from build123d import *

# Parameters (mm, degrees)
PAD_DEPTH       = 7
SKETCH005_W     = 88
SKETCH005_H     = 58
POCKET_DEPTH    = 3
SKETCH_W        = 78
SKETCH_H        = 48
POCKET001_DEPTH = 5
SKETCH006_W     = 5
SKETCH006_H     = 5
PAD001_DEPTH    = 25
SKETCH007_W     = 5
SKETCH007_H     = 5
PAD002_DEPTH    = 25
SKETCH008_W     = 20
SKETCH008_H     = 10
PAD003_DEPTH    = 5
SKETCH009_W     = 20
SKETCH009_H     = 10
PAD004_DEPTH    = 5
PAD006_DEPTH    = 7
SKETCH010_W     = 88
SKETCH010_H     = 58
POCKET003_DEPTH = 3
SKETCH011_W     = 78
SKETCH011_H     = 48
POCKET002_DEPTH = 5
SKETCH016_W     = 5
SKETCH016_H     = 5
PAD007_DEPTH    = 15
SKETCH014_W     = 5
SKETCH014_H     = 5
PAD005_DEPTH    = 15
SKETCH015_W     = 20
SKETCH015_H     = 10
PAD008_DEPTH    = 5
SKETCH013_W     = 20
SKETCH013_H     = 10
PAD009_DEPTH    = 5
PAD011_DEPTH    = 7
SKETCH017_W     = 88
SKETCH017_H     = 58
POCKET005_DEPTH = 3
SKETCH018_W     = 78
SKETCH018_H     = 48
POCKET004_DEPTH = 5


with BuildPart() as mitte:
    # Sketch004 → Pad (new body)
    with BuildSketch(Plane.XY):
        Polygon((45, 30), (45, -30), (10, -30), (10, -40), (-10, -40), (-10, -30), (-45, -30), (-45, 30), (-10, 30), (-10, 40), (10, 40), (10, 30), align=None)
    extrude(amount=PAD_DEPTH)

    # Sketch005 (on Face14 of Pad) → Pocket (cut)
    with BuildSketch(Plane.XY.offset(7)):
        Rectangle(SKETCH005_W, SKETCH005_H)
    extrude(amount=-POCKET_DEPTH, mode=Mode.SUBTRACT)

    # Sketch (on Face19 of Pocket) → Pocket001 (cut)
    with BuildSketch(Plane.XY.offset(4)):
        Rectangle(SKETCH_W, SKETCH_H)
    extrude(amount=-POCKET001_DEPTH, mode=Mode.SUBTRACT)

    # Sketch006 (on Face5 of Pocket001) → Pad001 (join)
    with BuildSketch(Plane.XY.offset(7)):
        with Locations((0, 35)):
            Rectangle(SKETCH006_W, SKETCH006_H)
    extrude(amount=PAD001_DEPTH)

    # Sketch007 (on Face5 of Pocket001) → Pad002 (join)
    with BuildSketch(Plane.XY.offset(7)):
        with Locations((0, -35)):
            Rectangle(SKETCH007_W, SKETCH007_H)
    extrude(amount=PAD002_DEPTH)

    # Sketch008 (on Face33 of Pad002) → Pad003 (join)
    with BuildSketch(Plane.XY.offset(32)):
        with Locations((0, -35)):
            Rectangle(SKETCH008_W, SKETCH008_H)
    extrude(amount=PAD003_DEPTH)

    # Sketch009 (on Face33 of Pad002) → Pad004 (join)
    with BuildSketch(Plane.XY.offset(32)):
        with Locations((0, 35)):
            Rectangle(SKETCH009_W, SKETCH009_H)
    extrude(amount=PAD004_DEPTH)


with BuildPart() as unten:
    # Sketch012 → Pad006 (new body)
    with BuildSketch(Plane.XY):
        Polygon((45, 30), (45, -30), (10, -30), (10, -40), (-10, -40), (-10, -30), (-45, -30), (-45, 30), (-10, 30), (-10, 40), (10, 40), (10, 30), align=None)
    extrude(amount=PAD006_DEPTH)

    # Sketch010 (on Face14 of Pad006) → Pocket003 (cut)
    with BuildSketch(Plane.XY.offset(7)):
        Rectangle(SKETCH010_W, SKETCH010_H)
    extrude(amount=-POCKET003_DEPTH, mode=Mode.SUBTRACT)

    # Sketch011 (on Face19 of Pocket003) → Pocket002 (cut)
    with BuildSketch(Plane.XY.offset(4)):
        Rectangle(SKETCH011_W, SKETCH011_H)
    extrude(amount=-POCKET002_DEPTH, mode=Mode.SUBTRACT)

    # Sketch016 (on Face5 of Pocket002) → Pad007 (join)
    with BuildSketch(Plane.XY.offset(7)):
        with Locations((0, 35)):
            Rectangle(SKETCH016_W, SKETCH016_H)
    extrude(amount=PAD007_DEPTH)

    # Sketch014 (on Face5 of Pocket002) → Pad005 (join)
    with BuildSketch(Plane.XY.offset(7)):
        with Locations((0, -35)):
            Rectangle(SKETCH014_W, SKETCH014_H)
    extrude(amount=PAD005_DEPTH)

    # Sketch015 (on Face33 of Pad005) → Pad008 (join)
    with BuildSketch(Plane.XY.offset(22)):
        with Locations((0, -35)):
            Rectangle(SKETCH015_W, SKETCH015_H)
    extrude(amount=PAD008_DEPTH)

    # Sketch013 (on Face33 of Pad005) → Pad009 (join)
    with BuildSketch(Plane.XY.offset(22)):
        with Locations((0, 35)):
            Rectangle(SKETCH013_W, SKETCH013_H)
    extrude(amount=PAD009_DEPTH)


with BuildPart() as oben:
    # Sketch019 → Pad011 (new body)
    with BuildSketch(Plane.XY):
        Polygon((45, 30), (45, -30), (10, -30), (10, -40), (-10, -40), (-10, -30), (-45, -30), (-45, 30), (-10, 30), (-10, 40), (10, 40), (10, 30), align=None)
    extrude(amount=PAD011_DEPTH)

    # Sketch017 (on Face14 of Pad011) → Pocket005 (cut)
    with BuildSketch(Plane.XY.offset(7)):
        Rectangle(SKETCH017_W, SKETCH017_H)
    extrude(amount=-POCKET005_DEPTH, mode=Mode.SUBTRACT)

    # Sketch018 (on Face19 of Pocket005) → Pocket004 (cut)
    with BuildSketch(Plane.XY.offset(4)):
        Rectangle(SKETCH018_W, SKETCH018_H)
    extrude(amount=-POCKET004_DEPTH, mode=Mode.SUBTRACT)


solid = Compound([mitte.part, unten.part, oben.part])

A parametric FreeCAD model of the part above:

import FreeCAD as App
import Part
import Sketcher
from FreeCAD import Vector

doc = App.newDocument("Part")
body = doc.addObject("PartDesign::Body", "Body")

# Sketch on XY plane
sketch1 = doc.addObject("Sketcher::SketchObject", "Sketch")
body.addObject(sketch1)
sketch1.AttachmentSupport = (doc.XY_Plane, [""])
sketch1.MapMode = "FlatFace"
sketch1.addGeometry([
    Part.LineSegment(Vector(45, -30, 0), Vector(45, 30, 0)),  # 0
    Part.LineSegment(Vector(45, 30, 0), Vector(10, 30, 0)),  # 1
    Part.LineSegment(Vector(10, 30, 0), Vector(10, 40, 0)),  # 2
    Part.LineSegment(Vector(10, 40, 0), Vector(-10, 40, 0)),  # 3
    Part.LineSegment(Vector(-10, 40, 0), Vector(-10, 30, 0)),  # 4
    Part.LineSegment(Vector(-10, 30, 0), Vector(-45, 30, 0)),  # 5
    Part.LineSegment(Vector(-45, 30, 0), Vector(-45, -30, 0)),  # 6
    Part.LineSegment(Vector(-45, -30, 0), Vector(-10, -30, 0)),  # 7
    Part.LineSegment(Vector(-10, -30, 0), Vector(-10, -40, 0)),  # 8
    Part.LineSegment(Vector(-10, -40, 0), Vector(10, -40, 0)),  # 9
    Part.LineSegment(Vector(10, -40, 0), Vector(10, -30, 0)),  # 10
    Part.LineSegment(Vector(10, -30, 0), Vector(45, -30, 0)),  # 11
], False)
sketch1.addConstraint([
    Sketcher.Constraint("Coincident", 0, 2, 1, 1),
    Sketcher.Constraint("Coincident", 1, 2, 2, 1),
    Sketcher.Constraint("Coincident", 2, 2, 3, 1),
    Sketcher.Constraint("Coincident", 3, 2, 4, 1),
    Sketcher.Constraint("Coincident", 4, 2, 5, 1),
    Sketcher.Constraint("Coincident", 5, 2, 6, 1),
    Sketcher.Constraint("Coincident", 6, 2, 7, 1),
    Sketcher.Constraint("Coincident", 7, 2, 8, 1),
    Sketcher.Constraint("Coincident", 8, 2, 9, 1),
    Sketcher.Constraint("Coincident", 9, 2, 10, 1),
    Sketcher.Constraint("Coincident", 10, 2, 11, 1),
    Sketcher.Constraint("Coincident", 11, 2, 0, 1),
    Sketcher.Constraint("Vertical", 0),
    Sketcher.Constraint("Horizontal", 1),
    Sketcher.Constraint("Vertical", 2),
    Sketcher.Constraint("Horizontal", 3),
    Sketcher.Constraint("Vertical", 4),
    Sketcher.Constraint("Horizontal", 5),
    Sketcher.Constraint("Vertical", 6),
    Sketcher.Constraint("Horizontal", 7),
    Sketcher.Constraint("Vertical", 8),
    Sketcher.Constraint("Horizontal", 9),
    Sketcher.Constraint("Vertical", 10),
    Sketcher.Constraint("Horizontal", 11),
    Sketcher.Constraint("Symmetric", 0, 2, 6, 2, -1, 1),
    Sketcher.Constraint("Symmetric", 2, 2, 8, 2, -1, 1),
    Sketcher.Constraint("Symmetric", 4, 2, 10, 2, -1, 1),
    Sketcher.Constraint("Symmetric", 1, 2, 4, 2, -2),
    Sketcher.Constraint("DistanceX", 1, 2, 1, 1, 35.0),
    Sketcher.Constraint("DistanceX", 3, 2, 3, 1, 20.0),
    Sketcher.Constraint("DistanceY", 0, 1, 0, 2, 60.0),
    Sketcher.Constraint("DistanceY", 2, 1, 2, 2, 10.0),
])
pad1 = doc.addObject("PartDesign::Pad", "Pad")
body.addObject(pad1)
pad1.Profile = sketch1
pad1.Length = 7

# Sketch on XY plane
sketch2 = doc.addObject("Sketcher::SketchObject", "Sketch001")
body.addObject(sketch2)
sketch2.AttachmentSupport = (doc.XY_Plane, [""])
sketch2.MapMode = "FlatFace"
sketch2.AttachmentOffset = App.Placement(Vector(0, 0, 7), App.Rotation())
sketch2.addGeometry([
    Part.LineSegment(Vector(-44, 29, 0), Vector(-44, -29, 0)),
    Part.LineSegment(Vector(-44, -29, 0), Vector(44, -29, 0)),
    Part.LineSegment(Vector(44, -29, 0), Vector(44, 29, 0)),
    Part.LineSegment(Vector(44, 29, 0), Vector(-44, 29, 0)),
], False)
sketch2.addConstraint([
    Sketcher.Constraint("Coincident", 0, 2, 1, 1),
    Sketcher.Constraint("Coincident", 1, 2, 2, 1),
    Sketcher.Constraint("Coincident", 2, 2, 3, 1),
    Sketcher.Constraint("Coincident", 3, 2, 0, 1),
    Sketcher.Constraint("Vertical", 0),
    Sketcher.Constraint("Horizontal", 1),
    Sketcher.Constraint("Vertical", 2),
    Sketcher.Constraint("Horizontal", 3),
    Sketcher.Constraint("Symmetric", 0, 2, 2, 2, -1, 1),
    Sketcher.Constraint("DistanceX", 1, 1, 1, 2, 88.0),
    Sketcher.Constraint("DistanceY", 0, 2, 0, 1, 58.0),
])
pocket1 = doc.addObject("PartDesign::Pocket", "Pocket")
body.addObject(pocket1)
pocket1.Profile = sketch2
pocket1.Length = 3

# Sketch on XY plane
sketch3 = doc.addObject("Sketcher::SketchObject", "Sketch002")
body.addObject(sketch3)
sketch3.AttachmentSupport = (doc.XY_Plane, [""])
sketch3.MapMode = "FlatFace"
sketch3.AttachmentOffset = App.Placement(Vector(0, 0, 4), App.Rotation())
sketch3.addGeometry([
    Part.LineSegment(Vector(-39, 24, 0), Vector(-39, -24, 0)),
    Part.LineSegment(Vector(-39, -24, 0), Vector(39, -24, 0)),
    Part.LineSegment(Vector(39, -24, 0), Vector(39, 24, 0)),
    Part.LineSegment(Vector(39, 24, 0), Vector(-39, 24, 0)),
], False)
sketch3.addConstraint([
    Sketcher.Constraint("Coincident", 0, 2, 1, 1),
    Sketcher.Constraint("Coincident", 1, 2, 2, 1),
    Sketcher.Constraint("Coincident", 2, 2, 3, 1),
    Sketcher.Constraint("Coincident", 3, 2, 0, 1),
    Sketcher.Constraint("Vertical", 0),
    Sketcher.Constraint("Horizontal", 1),
    Sketcher.Constraint("Vertical", 2),
    Sketcher.Constraint("Horizontal", 3),
    Sketcher.Constraint("Symmetric", 0, 2, 2, 2, -1, 1),
    Sketcher.Constraint("DistanceX", 1, 1, 1, 2, 78.0),
    Sketcher.Constraint("DistanceY", 0, 2, 0, 1, 48.0),
])
pocket2 = doc.addObject("PartDesign::Pocket", "Pocket001")
body.addObject(pocket2)
pocket2.Profile = sketch3
pocket2.Length = 5

# Sketch on XY plane
sketch4 = doc.addObject("Sketcher::SketchObject", "Sketch003")
body.addObject(sketch4)
sketch4.AttachmentSupport = (doc.XY_Plane, [""])
sketch4.MapMode = "FlatFace"
sketch4.AttachmentOffset = App.Placement(Vector(0, 0, 7), App.Rotation())
sketch4.addGeometry([
    Part.LineSegment(Vector(-2, 38, 0), Vector(-2, 32, 0)),
    Part.LineSegment(Vector(-2, 32, 0), Vector(2, 32, 0)),
    Part.LineSegment(Vector(2, 32, 0), Vector(2, 38, 0)),
    Part.LineSegment(Vector(2, 38, 0), Vector(-2, 38, 0)),
], False)
sketch4.addConstraint([
    Sketcher.Constraint("Coincident", 0, 2, 1, 1),
    Sketcher.Constraint("Coincident", 1, 2, 2, 1),
    Sketcher.Constraint("Coincident", 2, 2, 3, 1),
    Sketcher.Constraint("Coincident", 3, 2, 0, 1),
    Sketcher.Constraint("Vertical", 0),
    Sketcher.Constraint("Horizontal", 1),
    Sketcher.Constraint("Vertical", 2),
    Sketcher.Constraint("Horizontal", 3),
    Sketcher.Constraint("Equal", 3, 0),
    Sketcher.Constraint("DistanceX", 1, 1, 1, 2, 5.0),
    Sketcher.Constraint("DistanceX", 0, 2, -1, 1, 2.5),
    Sketcher.Constraint("DistanceY", -1, 1, 0, 2, 32.5),
])
pad2 = doc.addObject("PartDesign::Pad", "Pad001")
body.addObject(pad2)
pad2.Profile = sketch4
pad2.Length = 25

# Sketch on XY plane
sketch5 = doc.addObject("Sketcher::SketchObject", "Sketch004")
body.addObject(sketch5)
sketch5.AttachmentSupport = (doc.XY_Plane, [""])
sketch5.MapMode = "FlatFace"
sketch5.AttachmentOffset = App.Placement(Vector(0, 0, 7), App.Rotation())
sketch5.addGeometry([
    Part.LineSegment(Vector(-2, -32, 0), Vector(-2, -38, 0)),
    Part.LineSegment(Vector(-2, -38, 0), Vector(2, -38, 0)),
    Part.LineSegment(Vector(2, -38, 0), Vector(2, -32, 0)),
    Part.LineSegment(Vector(2, -32, 0), Vector(-2, -32, 0)),
], False)
sketch5.addConstraint([
    Sketcher.Constraint("Coincident", 0, 2, 1, 1),
    Sketcher.Constraint("Coincident", 1, 2, 2, 1),
    Sketcher.Constraint("Coincident", 2, 2, 3, 1),
    Sketcher.Constraint("Coincident", 3, 2, 0, 1),
    Sketcher.Constraint("Vertical", 0),
    Sketcher.Constraint("Horizontal", 1),
    Sketcher.Constraint("Vertical", 2),
    Sketcher.Constraint("Horizontal", 3),
    Sketcher.Constraint("Equal", 3, 0),
    Sketcher.Constraint("DistanceX", 1, 1, 1, 2, 5.0),
    Sketcher.Constraint("DistanceX", 0, 2, -1, 1, 2.5),
    Sketcher.Constraint("DistanceY", 0, 2, -1, 1, 37.5),
])
pad3 = doc.addObject("PartDesign::Pad", "Pad002")
body.addObject(pad3)
pad3.Profile = sketch5
pad3.Length = 25

# Sketch on XY plane
sketch6 = doc.addObject("Sketcher::SketchObject", "Sketch005")
body.addObject(sketch6)
sketch6.AttachmentSupport = (doc.XY_Plane, [""])
sketch6.MapMode = "FlatFace"
sketch6.AttachmentOffset = App.Placement(Vector(0, 0, 32), App.Rotation())
sketch6.addGeometry([
    Part.LineSegment(Vector(-10, -30, 0), Vector(-10, -40, 0)),
    Part.LineSegment(Vector(-10, -40, 0), Vector(10, -40, 0)),
    Part.LineSegment(Vector(10, -40, 0), Vector(10, -30, 0)),
    Part.LineSegment(Vector(10, -30, 0), Vector(-10, -30, 0)),
], False)
sketch6.addConstraint([
    Sketcher.Constraint("Coincident", 0, 2, 1, 1),
    Sketcher.Constraint("Coincident", 1, 2, 2, 1),
    Sketcher.Constraint("Coincident", 2, 2, 3, 1),
    Sketcher.Constraint("Coincident", 3, 2, 0, 1),
    Sketcher.Constraint("Vertical", 0),
    Sketcher.Constraint("Horizontal", 1),
    Sketcher.Constraint("Vertical", 2),
    Sketcher.Constraint("Horizontal", 3),
    Sketcher.Constraint("DistanceX", 1, 1, 1, 2, 20.0),
    Sketcher.Constraint("DistanceY", 0, 2, 0, 1, 10.0),
    Sketcher.Constraint("DistanceX", 0, 2, -1, 1, 10.0),
    Sketcher.Constraint("DistanceY", 0, 2, -1, 1, 40.0),
])
pad4 = doc.addObject("PartDesign::Pad", "Pad003")
body.addObject(pad4)
pad4.Profile = sketch6
pad4.Length = 5

# Sketch on XY plane
sketch7 = doc.addObject("Sketcher::SketchObject", "Sketch006")
body.addObject(sketch7)
sketch7.AttachmentSupport = (doc.XY_Plane, [""])
sketch7.MapMode = "FlatFace"
sketch7.AttachmentOffset = App.Placement(Vector(0, 0, 32), App.Rotation())
sketch7.addGeometry([
    Part.LineSegment(Vector(-10, 40, 0), Vector(-10, 30, 0)),
    Part.LineSegment(Vector(-10, 30, 0), Vector(10, 30, 0)),
    Part.LineSegment(Vector(10, 30, 0), Vector(10, 40, 0)),
    Part.LineSegment(Vector(10, 40, 0), Vector(-10, 40, 0)),
], False)
sketch7.addConstraint([
    Sketcher.Constraint("Coincident", 0, 2, 1, 1),
    Sketcher.Constraint("Coincident", 1, 2, 2, 1),
    Sketcher.Constraint("Coincident", 2, 2, 3, 1),
    Sketcher.Constraint("Coincident", 3, 2, 0, 1),
    Sketcher.Constraint("Vertical", 0),
    Sketcher.Constraint("Horizontal", 1),
    Sketcher.Constraint("Vertical", 2),
    Sketcher.Constraint("Horizontal", 3),
    Sketcher.Constraint("DistanceX", 1, 1, 1, 2, 20.0),
    Sketcher.Constraint("DistanceY", 0, 2, 0, 1, 10.0),
    Sketcher.Constraint("DistanceX", 0, 2, -1, 1, 10.0),
    Sketcher.Constraint("DistanceY", -1, 1, 0, 2, 30.0),
])
pad5 = doc.addObject("PartDesign::Pad", "Pad004")
body.addObject(pad5)
pad5.Profile = sketch7
pad5.Length = 5
body2 = doc.addObject("PartDesign::Body", "Body001")

# Sketch on XY plane
sketch8 = doc.addObject("Sketcher::SketchObject", "Sketch007")
body2.addObject(sketch8)
sketch8.AttachmentSupport = (doc.getObject("XY_Plane001"), [""])
sketch8.MapMode = "FlatFace"
sketch8.addGeometry([
    Part.LineSegment(Vector(45, -30, 0), Vector(45, 30, 0)),  # 0
    Part.LineSegment(Vector(45, 30, 0), Vector(10, 30, 0)),  # 1
    Part.LineSegment(Vector(10, 30, 0), Vector(10, 40, 0)),  # 2
    Part.LineSegment(Vector(10, 40, 0), Vector(-10, 40, 0)),  # 3
    Part.LineSegment(Vector(-10, 40, 0), Vector(-10, 30, 0)),  # 4
    Part.LineSegment(Vector(-10, 30, 0), Vector(-45, 30, 0)),  # 5
    Part.LineSegment(Vector(-45, 30, 0), Vector(-45, -30, 0)),  # 6
    Part.LineSegment(Vector(-45, -30, 0), Vector(-10, -30, 0)),  # 7
    Part.LineSegment(Vector(-10, -30, 0), Vector(-10, -40, 0)),  # 8
    Part.LineSegment(Vector(-10, -40, 0), Vector(10, -40, 0)),  # 9
    Part.LineSegment(Vector(10, -40, 0), Vector(10, -30, 0)),  # 10
    Part.LineSegment(Vector(10, -30, 0), Vector(45, -30, 0)),  # 11
], False)
sketch8.addConstraint([
    Sketcher.Constraint("Coincident", 0, 2, 1, 1),
    Sketcher.Constraint("Coincident", 1, 2, 2, 1),
    Sketcher.Constraint("Coincident", 2, 2, 3, 1),
    Sketcher.Constraint("Coincident", 3, 2, 4, 1),
    Sketcher.Constraint("Coincident", 4, 2, 5, 1),
    Sketcher.Constraint("Coincident", 5, 2, 6, 1),
    Sketcher.Constraint("Coincident", 6, 2, 7, 1),
    Sketcher.Constraint("Coincident", 7, 2, 8, 1),
    Sketcher.Constraint("Coincident", 8, 2, 9, 1),
    Sketcher.Constraint("Coincident", 9, 2, 10, 1),
    Sketcher.Constraint("Coincident", 10, 2, 11, 1),
    Sketcher.Constraint("Coincident", 11, 2, 0, 1),
    Sketcher.Constraint("Vertical", 0),
    Sketcher.Constraint("Horizontal", 1),
    Sketcher.Constraint("Vertical", 2),
    Sketcher.Constraint("Horizontal", 3),
    Sketcher.Constraint("Vertical", 4),
    Sketcher.Constraint("Horizontal", 5),
    Sketcher.Constraint("Vertical", 6),
    Sketcher.Constraint("Horizontal", 7),
    Sketcher.Constraint("Vertical", 8),
    Sketcher.Constraint("Horizontal", 9),
    Sketcher.Constraint("Vertical", 10),
    Sketcher.Constraint("Horizontal", 11),
    Sketcher.Constraint("Symmetric", 0, 2, 6, 2, -1, 1),
    Sketcher.Constraint("Symmetric", 2, 2, 8, 2, -1, 1),
    Sketcher.Constraint("Symmetric", 4, 2, 10, 2, -1, 1),
    Sketcher.Constraint("Symmetric", 1, 2, 4, 2, -2),
    Sketcher.Constraint("DistanceX", 1, 2, 1, 1, 35.0),
    Sketcher.Constraint("DistanceX", 3, 2, 3, 1, 20.0),
    Sketcher.Constraint("DistanceY", 0, 1, 0, 2, 60.0),
    Sketcher.Constraint("DistanceY", 2, 1, 2, 2, 10.0),
])
pad6 = doc.addObject("PartDesign::Pad", "Pad005")
body2.addObject(pad6)
pad6.Profile = sketch8
pad6.Length = 7

# Sketch on XY plane
sketch9 = doc.addObject("Sketcher::SketchObject", "Sketch008")
body2.addObject(sketch9)
sketch9.AttachmentSupport = (doc.getObject("XY_Plane001"), [""])
sketch9.MapMode = "FlatFace"
sketch9.AttachmentOffset = App.Placement(Vector(0, 0, 7), App.Rotation())
sketch9.addGeometry([
    Part.LineSegment(Vector(-44, 29, 0), Vector(-44, -29, 0)),
    Part.LineSegment(Vector(-44, -29, 0), Vector(44, -29, 0)),
    Part.LineSegment(Vector(44, -29, 0), Vector(44, 29, 0)),
    Part.LineSegment(Vector(44, 29, 0), Vector(-44, 29, 0)),
], False)
sketch9.addConstraint([
    Sketcher.Constraint("Coincident", 0, 2, 1, 1),
    Sketcher.Constraint("Coincident", 1, 2, 2, 1),
    Sketcher.Constraint("Coincident", 2, 2, 3, 1),
    Sketcher.Constraint("Coincident", 3, 2, 0, 1),
    Sketcher.Constraint("Vertical", 0),
    Sketcher.Constraint("Horizontal", 1),
    Sketcher.Constraint("Vertical", 2),
    Sketcher.Constraint("Horizontal", 3),
    Sketcher.Constraint("Symmetric", 0, 2, 2, 2, -1, 1),
    Sketcher.Constraint("DistanceX", 1, 1, 1, 2, 88.0),
    Sketcher.Constraint("DistanceY", 0, 2, 0, 1, 58.0),
])
pocket3 = doc.addObject("PartDesign::Pocket", "Pocket002")
body2.addObject(pocket3)
pocket3.Profile = sketch9
pocket3.Length = 3

# Sketch on XY plane
sketch10 = doc.addObject("Sketcher::SketchObject", "Sketch009")
body2.addObject(sketch10)
sketch10.AttachmentSupport = (doc.getObject("XY_Plane001"), [""])
sketch10.MapMode = "FlatFace"
sketch10.AttachmentOffset = App.Placement(Vector(0, 0, 4), App.Rotation())
sketch10.addGeometry([
    Part.LineSegment(Vector(-39, 24, 0), Vector(-39, -24, 0)),
    Part.LineSegment(Vector(-39, -24, 0), Vector(39, -24, 0)),
    Part.LineSegment(Vector(39, -24, 0), Vector(39, 24, 0)),
    Part.LineSegment(Vector(39, 24, 0), Vector(-39, 24, 0)),
], False)
sketch10.addConstraint([
    Sketcher.Constraint("Coincident", 0, 2, 1, 1),
    Sketcher.Constraint("Coincident", 1, 2, 2, 1),
    Sketcher.Constraint("Coincident", 2, 2, 3, 1),
    Sketcher.Constraint("Coincident", 3, 2, 0, 1),
    Sketcher.Constraint("Vertical", 0),
    Sketcher.Constraint("Horizontal", 1),
    Sketcher.Constraint("Vertical", 2),
    Sketcher.Constraint("Horizontal", 3),
    Sketcher.Constraint("Symmetric", 0, 2, 2, 2, -1, 1),
    Sketcher.Constraint("DistanceX", 1, 1, 1, 2, 78.0),
    Sketcher.Constraint("DistanceY", 0, 2, 0, 1, 48.0),
])
pocket4 = doc.addObject("PartDesign::Pocket", "Pocket003")
body2.addObject(pocket4)
pocket4.Profile = sketch10
pocket4.Length = 5

# Sketch on XY plane
sketch11 = doc.addObject("Sketcher::SketchObject", "Sketch010")
body2.addObject(sketch11)
sketch11.AttachmentSupport = (doc.getObject("XY_Plane001"), [""])
sketch11.MapMode = "FlatFace"
sketch11.AttachmentOffset = App.Placement(Vector(0, 0, 7), App.Rotation())
sketch11.addGeometry([
    Part.LineSegment(Vector(-2, 38, 0), Vector(-2, 32, 0)),
    Part.LineSegment(Vector(-2, 32, 0), Vector(2, 32, 0)),
    Part.LineSegment(Vector(2, 32, 0), Vector(2, 38, 0)),
    Part.LineSegment(Vector(2, 38, 0), Vector(-2, 38, 0)),
], False)
sketch11.addConstraint([
    Sketcher.Constraint("Coincident", 0, 2, 1, 1),
    Sketcher.Constraint("Coincident", 1, 2, 2, 1),
    Sketcher.Constraint("Coincident", 2, 2, 3, 1),
    Sketcher.Constraint("Coincident", 3, 2, 0, 1),
    Sketcher.Constraint("Vertical", 0),
    Sketcher.Constraint("Horizontal", 1),
    Sketcher.Constraint("Vertical", 2),
    Sketcher.Constraint("Horizontal", 3),
    Sketcher.Constraint("Equal", 3, 0),
    Sketcher.Constraint("DistanceX", 1, 1, 1, 2, 5.0),
    Sketcher.Constraint("DistanceX", 0, 2, -1, 1, 2.5),
    Sketcher.Constraint("DistanceY", -1, 1, 0, 2, 32.5),
])
pad7 = doc.addObject("PartDesign::Pad", "Pad006")
body2.addObject(pad7)
pad7.Profile = sketch11
pad7.Length = 15

# Sketch on XY plane
sketch12 = doc.addObject("Sketcher::SketchObject", "Sketch011")
body2.addObject(sketch12)
sketch12.AttachmentSupport = (doc.getObject("XY_Plane001"), [""])
sketch12.MapMode = "FlatFace"
sketch12.AttachmentOffset = App.Placement(Vector(0, 0, 7), App.Rotation())
sketch12.addGeometry([
    Part.LineSegment(Vector(-2, -32, 0), Vector(-2, -38, 0)),
    Part.LineSegment(Vector(-2, -38, 0), Vector(2, -38, 0)),
    Part.LineSegment(Vector(2, -38, 0), Vector(2, -32, 0)),
    Part.LineSegment(Vector(2, -32, 0), Vector(-2, -32, 0)),
], False)
sketch12.addConstraint([
    Sketcher.Constraint("Coincident", 0, 2, 1, 1),
    Sketcher.Constraint("Coincident", 1, 2, 2, 1),
    Sketcher.Constraint("Coincident", 2, 2, 3, 1),
    Sketcher.Constraint("Coincident", 3, 2, 0, 1),
    Sketcher.Constraint("Vertical", 0),
    Sketcher.Constraint("Horizontal", 1),
    Sketcher.Constraint("Vertical", 2),
    Sketcher.Constraint("Horizontal", 3),
    Sketcher.Constraint("Equal", 3, 0),
    Sketcher.Constraint("DistanceX", 1, 1, 1, 2, 5.0),
    Sketcher.Constraint("DistanceX", 0, 2, -1, 1, 2.5),
    Sketcher.Constraint("DistanceY", 0, 2, -1, 1, 37.5),
])
pad8 = doc.addObject("PartDesign::Pad", "Pad007")
body2.addObject(pad8)
pad8.Profile = sketch12
pad8.Length = 15

# Sketch on XY plane
sketch13 = doc.addObject("Sketcher::SketchObject", "Sketch012")
body2.addObject(sketch13)
sketch13.AttachmentSupport = (doc.getObject("XY_Plane001"), [""])
sketch13.MapMode = "FlatFace"
sketch13.AttachmentOffset = App.Placement(Vector(0, 0, 22), App.Rotation())
sketch13.addGeometry([
    Part.LineSegment(Vector(-10, -30, 0), Vector(-10, -40, 0)),
    Part.LineSegment(Vector(-10, -40, 0), Vector(10, -40, 0)),
    Part.LineSegment(Vector(10, -40, 0), Vector(10, -30, 0)),
    Part.LineSegment(Vector(10, -30, 0), Vector(-10, -30, 0)),
], False)
sketch13.addConstraint([
    Sketcher.Constraint("Coincident", 0, 2, 1, 1),
    Sketcher.Constraint("Coincident", 1, 2, 2, 1),
    Sketcher.Constraint("Coincident", 2, 2, 3, 1),
    Sketcher.Constraint("Coincident", 3, 2, 0, 1),
    Sketcher.Constraint("Vertical", 0),
    Sketcher.Constraint("Horizontal", 1),
    Sketcher.Constraint("Vertical", 2),
    Sketcher.Constraint("Horizontal", 3),
    Sketcher.Constraint("DistanceX", 1, 1, 1, 2, 20.0),
    Sketcher.Constraint("DistanceY", 0, 2, 0, 1, 10.0),
    Sketcher.Constraint("DistanceX", 0, 2, -1, 1, 10.0),
    Sketcher.Constraint("DistanceY", 0, 2, -1, 1, 40.0),
])
pad9 = doc.addObject("PartDesign::Pad", "Pad008")
body2.addObject(pad9)
pad9.Profile = sketch13
pad9.Length = 5

# Sketch on XY plane
sketch14 = doc.addObject("Sketcher::SketchObject", "Sketch013")
body2.addObject(sketch14)
sketch14.AttachmentSupport = (doc.getObject("XY_Plane001"), [""])
sketch14.MapMode = "FlatFace"
sketch14.AttachmentOffset = App.Placement(Vector(0, 0, 22), App.Rotation())
sketch14.addGeometry([
    Part.LineSegment(Vector(-10, 40, 0), Vector(-10, 30, 0)),
    Part.LineSegment(Vector(-10, 30, 0), Vector(10, 30, 0)),
    Part.LineSegment(Vector(10, 30, 0), Vector(10, 40, 0)),
    Part.LineSegment(Vector(10, 40, 0), Vector(-10, 40, 0)),
], False)
sketch14.addConstraint([
    Sketcher.Constraint("Coincident", 0, 2, 1, 1),
    Sketcher.Constraint("Coincident", 1, 2, 2, 1),
    Sketcher.Constraint("Coincident", 2, 2, 3, 1),
    Sketcher.Constraint("Coincident", 3, 2, 0, 1),
    Sketcher.Constraint("Vertical", 0),
    Sketcher.Constraint("Horizontal", 1),
    Sketcher.Constraint("Vertical", 2),
    Sketcher.Constraint("Horizontal", 3),
    Sketcher.Constraint("DistanceX", 1, 1, 1, 2, 20.0),
    Sketcher.Constraint("DistanceY", 0, 2, 0, 1, 10.0),
    Sketcher.Constraint("DistanceX", 0, 2, -1, 1, 10.0),
    Sketcher.Constraint("DistanceY", -1, 1, 0, 2, 30.0),
])
pad10 = doc.addObject("PartDesign::Pad", "Pad009")
body2.addObject(pad10)
pad10.Profile = sketch14
pad10.Length = 5
body3 = doc.addObject("PartDesign::Body", "Body002")

# Sketch on XY plane
sketch15 = doc.addObject("Sketcher::SketchObject", "Sketch014")
body3.addObject(sketch15)
sketch15.AttachmentSupport = (doc.getObject("XY_Plane002"), [""])
sketch15.MapMode = "FlatFace"
sketch15.addGeometry([
    Part.LineSegment(Vector(45, -30, 0), Vector(45, 30, 0)),  # 0
    Part.LineSegment(Vector(45, 30, 0), Vector(10, 30, 0)),  # 1
    Part.LineSegment(Vector(10, 30, 0), Vector(10, 40, 0)),  # 2
    Part.LineSegment(Vector(10, 40, 0), Vector(-10, 40, 0)),  # 3
    Part.LineSegment(Vector(-10, 40, 0), Vector(-10, 30, 0)),  # 4
    Part.LineSegment(Vector(-10, 30, 0), Vector(-45, 30, 0)),  # 5
    Part.LineSegment(Vector(-45, 30, 0), Vector(-45, -30, 0)),  # 6
    Part.LineSegment(Vector(-45, -30, 0), Vector(-10, -30, 0)),  # 7
    Part.LineSegment(Vector(-10, -30, 0), Vector(-10, -40, 0)),  # 8
    Part.LineSegment(Vector(-10, -40, 0), Vector(10, -40, 0)),  # 9
    Part.LineSegment(Vector(10, -40, 0), Vector(10, -30, 0)),  # 10
    Part.LineSegment(Vector(10, -30, 0), Vector(45, -30, 0)),  # 11
], False)
sketch15.addConstraint([
    Sketcher.Constraint("Coincident", 0, 2, 1, 1),
    Sketcher.Constraint("Coincident", 1, 2, 2, 1),
    Sketcher.Constraint("Coincident", 2, 2, 3, 1),
    Sketcher.Constraint("Coincident", 3, 2, 4, 1),
    Sketcher.Constraint("Coincident", 4, 2, 5, 1),
    Sketcher.Constraint("Coincident", 5, 2, 6, 1),
    Sketcher.Constraint("Coincident", 6, 2, 7, 1),
    Sketcher.Constraint("Coincident", 7, 2, 8, 1),
    Sketcher.Constraint("Coincident", 8, 2, 9, 1),
    Sketcher.Constraint("Coincident", 9, 2, 10, 1),
    Sketcher.Constraint("Coincident", 10, 2, 11, 1),
    Sketcher.Constraint("Coincident", 11, 2, 0, 1),
    Sketcher.Constraint("Vertical", 0),
    Sketcher.Constraint("Horizontal", 1),
    Sketcher.Constraint("Vertical", 2),
    Sketcher.Constraint("Horizontal", 3),
    Sketcher.Constraint("Vertical", 4),
    Sketcher.Constraint("Horizontal", 5),
    Sketcher.Constraint("Vertical", 6),
    Sketcher.Constraint("Horizontal", 7),
    Sketcher.Constraint("Vertical", 8),
    Sketcher.Constraint("Horizontal", 9),
    Sketcher.Constraint("Vertical", 10),
    Sketcher.Constraint("Horizontal", 11),
    Sketcher.Constraint("Symmetric", 0, 2, 6, 2, -1, 1),
    Sketcher.Constraint("Symmetric", 2, 2, 8, 2, -1, 1),
    Sketcher.Constraint("Symmetric", 4, 2, 10, 2, -1, 1),
    Sketcher.Constraint("Symmetric", 1, 2, 4, 2, -2),
    Sketcher.Constraint("DistanceX", 1, 2, 1, 1, 35.0),
    Sketcher.Constraint("DistanceX", 3, 2, 3, 1, 20.0),
    Sketcher.Constraint("DistanceY", 0, 1, 0, 2, 60.0),
    Sketcher.Constraint("DistanceY", 2, 1, 2, 2, 10.0),
])
pad11 = doc.addObject("PartDesign::Pad", "Pad010")
body3.addObject(pad11)
pad11.Profile = sketch15
pad11.Length = 7

# Sketch on XY plane
sketch16 = doc.addObject("Sketcher::SketchObject", "Sketch015")
body3.addObject(sketch16)
sketch16.AttachmentSupport = (doc.getObject("XY_Plane002"), [""])
sketch16.MapMode = "FlatFace"
sketch16.AttachmentOffset = App.Placement(Vector(0, 0, 7), App.Rotation())
sketch16.addGeometry([
    Part.LineSegment(Vector(-44, 29, 0), Vector(-44, -29, 0)),
    Part.LineSegment(Vector(-44, -29, 0), Vector(44, -29, 0)),
    Part.LineSegment(Vector(44, -29, 0), Vector(44, 29, 0)),
    Part.LineSegment(Vector(44, 29, 0), Vector(-44, 29, 0)),
], False)
sketch16.addConstraint([
    Sketcher.Constraint("Coincident", 0, 2, 1, 1),
    Sketcher.Constraint("Coincident", 1, 2, 2, 1),
    Sketcher.Constraint("Coincident", 2, 2, 3, 1),
    Sketcher.Constraint("Coincident", 3, 2, 0, 1),
    Sketcher.Constraint("Vertical", 0),
    Sketcher.Constraint("Horizontal", 1),
    Sketcher.Constraint("Vertical", 2),
    Sketcher.Constraint("Horizontal", 3),
    Sketcher.Constraint("Symmetric", 0, 2, 2, 2, -1, 1),
    Sketcher.Constraint("DistanceX", 1, 1, 1, 2, 88.0),
    Sketcher.Constraint("DistanceY", 0, 2, 0, 1, 58.0),
])
pocket5 = doc.addObject("PartDesign::Pocket", "Pocket004")
body3.addObject(pocket5)
pocket5.Profile = sketch16
pocket5.Length = 3

# Sketch on XY plane
sketch17 = doc.addObject("Sketcher::SketchObject", "Sketch016")
body3.addObject(sketch17)
sketch17.AttachmentSupport = (doc.getObject("XY_Plane002"), [""])
sketch17.MapMode = "FlatFace"
sketch17.AttachmentOffset = App.Placement(Vector(0, 0, 4), App.Rotation())
sketch17.addGeometry([
    Part.LineSegment(Vector(-39, 24, 0), Vector(-39, -24, 0)),
    Part.LineSegment(Vector(-39, -24, 0), Vector(39, -24, 0)),
    Part.LineSegment(Vector(39, -24, 0), Vector(39, 24, 0)),
    Part.LineSegment(Vector(39, 24, 0), Vector(-39, 24, 0)),
], False)
sketch17.addConstraint([
    Sketcher.Constraint("Coincident", 0, 2, 1, 1),
    Sketcher.Constraint("Coincident", 1, 2, 2, 1),
    Sketcher.Constraint("Coincident", 2, 2, 3, 1),
    Sketcher.Constraint("Coincident", 3, 2, 0, 1),
    Sketcher.Constraint("Vertical", 0),
    Sketcher.Constraint("Horizontal", 1),
    Sketcher.Constraint("Vertical", 2),
    Sketcher.Constraint("Horizontal", 3),
    Sketcher.Constraint("Symmetric", 0, 2, 2, 2, -1, 1),
    Sketcher.Constraint("DistanceX", 1, 1, 1, 2, 78.0),
    Sketcher.Constraint("DistanceY", 0, 2, 0, 1, 48.0),
])
pocket6 = doc.addObject("PartDesign::Pocket", "Pocket005")
body3.addObject(pocket6)
pocket6.Profile = sketch17
pocket6.Length = 5

doc.recompute()
